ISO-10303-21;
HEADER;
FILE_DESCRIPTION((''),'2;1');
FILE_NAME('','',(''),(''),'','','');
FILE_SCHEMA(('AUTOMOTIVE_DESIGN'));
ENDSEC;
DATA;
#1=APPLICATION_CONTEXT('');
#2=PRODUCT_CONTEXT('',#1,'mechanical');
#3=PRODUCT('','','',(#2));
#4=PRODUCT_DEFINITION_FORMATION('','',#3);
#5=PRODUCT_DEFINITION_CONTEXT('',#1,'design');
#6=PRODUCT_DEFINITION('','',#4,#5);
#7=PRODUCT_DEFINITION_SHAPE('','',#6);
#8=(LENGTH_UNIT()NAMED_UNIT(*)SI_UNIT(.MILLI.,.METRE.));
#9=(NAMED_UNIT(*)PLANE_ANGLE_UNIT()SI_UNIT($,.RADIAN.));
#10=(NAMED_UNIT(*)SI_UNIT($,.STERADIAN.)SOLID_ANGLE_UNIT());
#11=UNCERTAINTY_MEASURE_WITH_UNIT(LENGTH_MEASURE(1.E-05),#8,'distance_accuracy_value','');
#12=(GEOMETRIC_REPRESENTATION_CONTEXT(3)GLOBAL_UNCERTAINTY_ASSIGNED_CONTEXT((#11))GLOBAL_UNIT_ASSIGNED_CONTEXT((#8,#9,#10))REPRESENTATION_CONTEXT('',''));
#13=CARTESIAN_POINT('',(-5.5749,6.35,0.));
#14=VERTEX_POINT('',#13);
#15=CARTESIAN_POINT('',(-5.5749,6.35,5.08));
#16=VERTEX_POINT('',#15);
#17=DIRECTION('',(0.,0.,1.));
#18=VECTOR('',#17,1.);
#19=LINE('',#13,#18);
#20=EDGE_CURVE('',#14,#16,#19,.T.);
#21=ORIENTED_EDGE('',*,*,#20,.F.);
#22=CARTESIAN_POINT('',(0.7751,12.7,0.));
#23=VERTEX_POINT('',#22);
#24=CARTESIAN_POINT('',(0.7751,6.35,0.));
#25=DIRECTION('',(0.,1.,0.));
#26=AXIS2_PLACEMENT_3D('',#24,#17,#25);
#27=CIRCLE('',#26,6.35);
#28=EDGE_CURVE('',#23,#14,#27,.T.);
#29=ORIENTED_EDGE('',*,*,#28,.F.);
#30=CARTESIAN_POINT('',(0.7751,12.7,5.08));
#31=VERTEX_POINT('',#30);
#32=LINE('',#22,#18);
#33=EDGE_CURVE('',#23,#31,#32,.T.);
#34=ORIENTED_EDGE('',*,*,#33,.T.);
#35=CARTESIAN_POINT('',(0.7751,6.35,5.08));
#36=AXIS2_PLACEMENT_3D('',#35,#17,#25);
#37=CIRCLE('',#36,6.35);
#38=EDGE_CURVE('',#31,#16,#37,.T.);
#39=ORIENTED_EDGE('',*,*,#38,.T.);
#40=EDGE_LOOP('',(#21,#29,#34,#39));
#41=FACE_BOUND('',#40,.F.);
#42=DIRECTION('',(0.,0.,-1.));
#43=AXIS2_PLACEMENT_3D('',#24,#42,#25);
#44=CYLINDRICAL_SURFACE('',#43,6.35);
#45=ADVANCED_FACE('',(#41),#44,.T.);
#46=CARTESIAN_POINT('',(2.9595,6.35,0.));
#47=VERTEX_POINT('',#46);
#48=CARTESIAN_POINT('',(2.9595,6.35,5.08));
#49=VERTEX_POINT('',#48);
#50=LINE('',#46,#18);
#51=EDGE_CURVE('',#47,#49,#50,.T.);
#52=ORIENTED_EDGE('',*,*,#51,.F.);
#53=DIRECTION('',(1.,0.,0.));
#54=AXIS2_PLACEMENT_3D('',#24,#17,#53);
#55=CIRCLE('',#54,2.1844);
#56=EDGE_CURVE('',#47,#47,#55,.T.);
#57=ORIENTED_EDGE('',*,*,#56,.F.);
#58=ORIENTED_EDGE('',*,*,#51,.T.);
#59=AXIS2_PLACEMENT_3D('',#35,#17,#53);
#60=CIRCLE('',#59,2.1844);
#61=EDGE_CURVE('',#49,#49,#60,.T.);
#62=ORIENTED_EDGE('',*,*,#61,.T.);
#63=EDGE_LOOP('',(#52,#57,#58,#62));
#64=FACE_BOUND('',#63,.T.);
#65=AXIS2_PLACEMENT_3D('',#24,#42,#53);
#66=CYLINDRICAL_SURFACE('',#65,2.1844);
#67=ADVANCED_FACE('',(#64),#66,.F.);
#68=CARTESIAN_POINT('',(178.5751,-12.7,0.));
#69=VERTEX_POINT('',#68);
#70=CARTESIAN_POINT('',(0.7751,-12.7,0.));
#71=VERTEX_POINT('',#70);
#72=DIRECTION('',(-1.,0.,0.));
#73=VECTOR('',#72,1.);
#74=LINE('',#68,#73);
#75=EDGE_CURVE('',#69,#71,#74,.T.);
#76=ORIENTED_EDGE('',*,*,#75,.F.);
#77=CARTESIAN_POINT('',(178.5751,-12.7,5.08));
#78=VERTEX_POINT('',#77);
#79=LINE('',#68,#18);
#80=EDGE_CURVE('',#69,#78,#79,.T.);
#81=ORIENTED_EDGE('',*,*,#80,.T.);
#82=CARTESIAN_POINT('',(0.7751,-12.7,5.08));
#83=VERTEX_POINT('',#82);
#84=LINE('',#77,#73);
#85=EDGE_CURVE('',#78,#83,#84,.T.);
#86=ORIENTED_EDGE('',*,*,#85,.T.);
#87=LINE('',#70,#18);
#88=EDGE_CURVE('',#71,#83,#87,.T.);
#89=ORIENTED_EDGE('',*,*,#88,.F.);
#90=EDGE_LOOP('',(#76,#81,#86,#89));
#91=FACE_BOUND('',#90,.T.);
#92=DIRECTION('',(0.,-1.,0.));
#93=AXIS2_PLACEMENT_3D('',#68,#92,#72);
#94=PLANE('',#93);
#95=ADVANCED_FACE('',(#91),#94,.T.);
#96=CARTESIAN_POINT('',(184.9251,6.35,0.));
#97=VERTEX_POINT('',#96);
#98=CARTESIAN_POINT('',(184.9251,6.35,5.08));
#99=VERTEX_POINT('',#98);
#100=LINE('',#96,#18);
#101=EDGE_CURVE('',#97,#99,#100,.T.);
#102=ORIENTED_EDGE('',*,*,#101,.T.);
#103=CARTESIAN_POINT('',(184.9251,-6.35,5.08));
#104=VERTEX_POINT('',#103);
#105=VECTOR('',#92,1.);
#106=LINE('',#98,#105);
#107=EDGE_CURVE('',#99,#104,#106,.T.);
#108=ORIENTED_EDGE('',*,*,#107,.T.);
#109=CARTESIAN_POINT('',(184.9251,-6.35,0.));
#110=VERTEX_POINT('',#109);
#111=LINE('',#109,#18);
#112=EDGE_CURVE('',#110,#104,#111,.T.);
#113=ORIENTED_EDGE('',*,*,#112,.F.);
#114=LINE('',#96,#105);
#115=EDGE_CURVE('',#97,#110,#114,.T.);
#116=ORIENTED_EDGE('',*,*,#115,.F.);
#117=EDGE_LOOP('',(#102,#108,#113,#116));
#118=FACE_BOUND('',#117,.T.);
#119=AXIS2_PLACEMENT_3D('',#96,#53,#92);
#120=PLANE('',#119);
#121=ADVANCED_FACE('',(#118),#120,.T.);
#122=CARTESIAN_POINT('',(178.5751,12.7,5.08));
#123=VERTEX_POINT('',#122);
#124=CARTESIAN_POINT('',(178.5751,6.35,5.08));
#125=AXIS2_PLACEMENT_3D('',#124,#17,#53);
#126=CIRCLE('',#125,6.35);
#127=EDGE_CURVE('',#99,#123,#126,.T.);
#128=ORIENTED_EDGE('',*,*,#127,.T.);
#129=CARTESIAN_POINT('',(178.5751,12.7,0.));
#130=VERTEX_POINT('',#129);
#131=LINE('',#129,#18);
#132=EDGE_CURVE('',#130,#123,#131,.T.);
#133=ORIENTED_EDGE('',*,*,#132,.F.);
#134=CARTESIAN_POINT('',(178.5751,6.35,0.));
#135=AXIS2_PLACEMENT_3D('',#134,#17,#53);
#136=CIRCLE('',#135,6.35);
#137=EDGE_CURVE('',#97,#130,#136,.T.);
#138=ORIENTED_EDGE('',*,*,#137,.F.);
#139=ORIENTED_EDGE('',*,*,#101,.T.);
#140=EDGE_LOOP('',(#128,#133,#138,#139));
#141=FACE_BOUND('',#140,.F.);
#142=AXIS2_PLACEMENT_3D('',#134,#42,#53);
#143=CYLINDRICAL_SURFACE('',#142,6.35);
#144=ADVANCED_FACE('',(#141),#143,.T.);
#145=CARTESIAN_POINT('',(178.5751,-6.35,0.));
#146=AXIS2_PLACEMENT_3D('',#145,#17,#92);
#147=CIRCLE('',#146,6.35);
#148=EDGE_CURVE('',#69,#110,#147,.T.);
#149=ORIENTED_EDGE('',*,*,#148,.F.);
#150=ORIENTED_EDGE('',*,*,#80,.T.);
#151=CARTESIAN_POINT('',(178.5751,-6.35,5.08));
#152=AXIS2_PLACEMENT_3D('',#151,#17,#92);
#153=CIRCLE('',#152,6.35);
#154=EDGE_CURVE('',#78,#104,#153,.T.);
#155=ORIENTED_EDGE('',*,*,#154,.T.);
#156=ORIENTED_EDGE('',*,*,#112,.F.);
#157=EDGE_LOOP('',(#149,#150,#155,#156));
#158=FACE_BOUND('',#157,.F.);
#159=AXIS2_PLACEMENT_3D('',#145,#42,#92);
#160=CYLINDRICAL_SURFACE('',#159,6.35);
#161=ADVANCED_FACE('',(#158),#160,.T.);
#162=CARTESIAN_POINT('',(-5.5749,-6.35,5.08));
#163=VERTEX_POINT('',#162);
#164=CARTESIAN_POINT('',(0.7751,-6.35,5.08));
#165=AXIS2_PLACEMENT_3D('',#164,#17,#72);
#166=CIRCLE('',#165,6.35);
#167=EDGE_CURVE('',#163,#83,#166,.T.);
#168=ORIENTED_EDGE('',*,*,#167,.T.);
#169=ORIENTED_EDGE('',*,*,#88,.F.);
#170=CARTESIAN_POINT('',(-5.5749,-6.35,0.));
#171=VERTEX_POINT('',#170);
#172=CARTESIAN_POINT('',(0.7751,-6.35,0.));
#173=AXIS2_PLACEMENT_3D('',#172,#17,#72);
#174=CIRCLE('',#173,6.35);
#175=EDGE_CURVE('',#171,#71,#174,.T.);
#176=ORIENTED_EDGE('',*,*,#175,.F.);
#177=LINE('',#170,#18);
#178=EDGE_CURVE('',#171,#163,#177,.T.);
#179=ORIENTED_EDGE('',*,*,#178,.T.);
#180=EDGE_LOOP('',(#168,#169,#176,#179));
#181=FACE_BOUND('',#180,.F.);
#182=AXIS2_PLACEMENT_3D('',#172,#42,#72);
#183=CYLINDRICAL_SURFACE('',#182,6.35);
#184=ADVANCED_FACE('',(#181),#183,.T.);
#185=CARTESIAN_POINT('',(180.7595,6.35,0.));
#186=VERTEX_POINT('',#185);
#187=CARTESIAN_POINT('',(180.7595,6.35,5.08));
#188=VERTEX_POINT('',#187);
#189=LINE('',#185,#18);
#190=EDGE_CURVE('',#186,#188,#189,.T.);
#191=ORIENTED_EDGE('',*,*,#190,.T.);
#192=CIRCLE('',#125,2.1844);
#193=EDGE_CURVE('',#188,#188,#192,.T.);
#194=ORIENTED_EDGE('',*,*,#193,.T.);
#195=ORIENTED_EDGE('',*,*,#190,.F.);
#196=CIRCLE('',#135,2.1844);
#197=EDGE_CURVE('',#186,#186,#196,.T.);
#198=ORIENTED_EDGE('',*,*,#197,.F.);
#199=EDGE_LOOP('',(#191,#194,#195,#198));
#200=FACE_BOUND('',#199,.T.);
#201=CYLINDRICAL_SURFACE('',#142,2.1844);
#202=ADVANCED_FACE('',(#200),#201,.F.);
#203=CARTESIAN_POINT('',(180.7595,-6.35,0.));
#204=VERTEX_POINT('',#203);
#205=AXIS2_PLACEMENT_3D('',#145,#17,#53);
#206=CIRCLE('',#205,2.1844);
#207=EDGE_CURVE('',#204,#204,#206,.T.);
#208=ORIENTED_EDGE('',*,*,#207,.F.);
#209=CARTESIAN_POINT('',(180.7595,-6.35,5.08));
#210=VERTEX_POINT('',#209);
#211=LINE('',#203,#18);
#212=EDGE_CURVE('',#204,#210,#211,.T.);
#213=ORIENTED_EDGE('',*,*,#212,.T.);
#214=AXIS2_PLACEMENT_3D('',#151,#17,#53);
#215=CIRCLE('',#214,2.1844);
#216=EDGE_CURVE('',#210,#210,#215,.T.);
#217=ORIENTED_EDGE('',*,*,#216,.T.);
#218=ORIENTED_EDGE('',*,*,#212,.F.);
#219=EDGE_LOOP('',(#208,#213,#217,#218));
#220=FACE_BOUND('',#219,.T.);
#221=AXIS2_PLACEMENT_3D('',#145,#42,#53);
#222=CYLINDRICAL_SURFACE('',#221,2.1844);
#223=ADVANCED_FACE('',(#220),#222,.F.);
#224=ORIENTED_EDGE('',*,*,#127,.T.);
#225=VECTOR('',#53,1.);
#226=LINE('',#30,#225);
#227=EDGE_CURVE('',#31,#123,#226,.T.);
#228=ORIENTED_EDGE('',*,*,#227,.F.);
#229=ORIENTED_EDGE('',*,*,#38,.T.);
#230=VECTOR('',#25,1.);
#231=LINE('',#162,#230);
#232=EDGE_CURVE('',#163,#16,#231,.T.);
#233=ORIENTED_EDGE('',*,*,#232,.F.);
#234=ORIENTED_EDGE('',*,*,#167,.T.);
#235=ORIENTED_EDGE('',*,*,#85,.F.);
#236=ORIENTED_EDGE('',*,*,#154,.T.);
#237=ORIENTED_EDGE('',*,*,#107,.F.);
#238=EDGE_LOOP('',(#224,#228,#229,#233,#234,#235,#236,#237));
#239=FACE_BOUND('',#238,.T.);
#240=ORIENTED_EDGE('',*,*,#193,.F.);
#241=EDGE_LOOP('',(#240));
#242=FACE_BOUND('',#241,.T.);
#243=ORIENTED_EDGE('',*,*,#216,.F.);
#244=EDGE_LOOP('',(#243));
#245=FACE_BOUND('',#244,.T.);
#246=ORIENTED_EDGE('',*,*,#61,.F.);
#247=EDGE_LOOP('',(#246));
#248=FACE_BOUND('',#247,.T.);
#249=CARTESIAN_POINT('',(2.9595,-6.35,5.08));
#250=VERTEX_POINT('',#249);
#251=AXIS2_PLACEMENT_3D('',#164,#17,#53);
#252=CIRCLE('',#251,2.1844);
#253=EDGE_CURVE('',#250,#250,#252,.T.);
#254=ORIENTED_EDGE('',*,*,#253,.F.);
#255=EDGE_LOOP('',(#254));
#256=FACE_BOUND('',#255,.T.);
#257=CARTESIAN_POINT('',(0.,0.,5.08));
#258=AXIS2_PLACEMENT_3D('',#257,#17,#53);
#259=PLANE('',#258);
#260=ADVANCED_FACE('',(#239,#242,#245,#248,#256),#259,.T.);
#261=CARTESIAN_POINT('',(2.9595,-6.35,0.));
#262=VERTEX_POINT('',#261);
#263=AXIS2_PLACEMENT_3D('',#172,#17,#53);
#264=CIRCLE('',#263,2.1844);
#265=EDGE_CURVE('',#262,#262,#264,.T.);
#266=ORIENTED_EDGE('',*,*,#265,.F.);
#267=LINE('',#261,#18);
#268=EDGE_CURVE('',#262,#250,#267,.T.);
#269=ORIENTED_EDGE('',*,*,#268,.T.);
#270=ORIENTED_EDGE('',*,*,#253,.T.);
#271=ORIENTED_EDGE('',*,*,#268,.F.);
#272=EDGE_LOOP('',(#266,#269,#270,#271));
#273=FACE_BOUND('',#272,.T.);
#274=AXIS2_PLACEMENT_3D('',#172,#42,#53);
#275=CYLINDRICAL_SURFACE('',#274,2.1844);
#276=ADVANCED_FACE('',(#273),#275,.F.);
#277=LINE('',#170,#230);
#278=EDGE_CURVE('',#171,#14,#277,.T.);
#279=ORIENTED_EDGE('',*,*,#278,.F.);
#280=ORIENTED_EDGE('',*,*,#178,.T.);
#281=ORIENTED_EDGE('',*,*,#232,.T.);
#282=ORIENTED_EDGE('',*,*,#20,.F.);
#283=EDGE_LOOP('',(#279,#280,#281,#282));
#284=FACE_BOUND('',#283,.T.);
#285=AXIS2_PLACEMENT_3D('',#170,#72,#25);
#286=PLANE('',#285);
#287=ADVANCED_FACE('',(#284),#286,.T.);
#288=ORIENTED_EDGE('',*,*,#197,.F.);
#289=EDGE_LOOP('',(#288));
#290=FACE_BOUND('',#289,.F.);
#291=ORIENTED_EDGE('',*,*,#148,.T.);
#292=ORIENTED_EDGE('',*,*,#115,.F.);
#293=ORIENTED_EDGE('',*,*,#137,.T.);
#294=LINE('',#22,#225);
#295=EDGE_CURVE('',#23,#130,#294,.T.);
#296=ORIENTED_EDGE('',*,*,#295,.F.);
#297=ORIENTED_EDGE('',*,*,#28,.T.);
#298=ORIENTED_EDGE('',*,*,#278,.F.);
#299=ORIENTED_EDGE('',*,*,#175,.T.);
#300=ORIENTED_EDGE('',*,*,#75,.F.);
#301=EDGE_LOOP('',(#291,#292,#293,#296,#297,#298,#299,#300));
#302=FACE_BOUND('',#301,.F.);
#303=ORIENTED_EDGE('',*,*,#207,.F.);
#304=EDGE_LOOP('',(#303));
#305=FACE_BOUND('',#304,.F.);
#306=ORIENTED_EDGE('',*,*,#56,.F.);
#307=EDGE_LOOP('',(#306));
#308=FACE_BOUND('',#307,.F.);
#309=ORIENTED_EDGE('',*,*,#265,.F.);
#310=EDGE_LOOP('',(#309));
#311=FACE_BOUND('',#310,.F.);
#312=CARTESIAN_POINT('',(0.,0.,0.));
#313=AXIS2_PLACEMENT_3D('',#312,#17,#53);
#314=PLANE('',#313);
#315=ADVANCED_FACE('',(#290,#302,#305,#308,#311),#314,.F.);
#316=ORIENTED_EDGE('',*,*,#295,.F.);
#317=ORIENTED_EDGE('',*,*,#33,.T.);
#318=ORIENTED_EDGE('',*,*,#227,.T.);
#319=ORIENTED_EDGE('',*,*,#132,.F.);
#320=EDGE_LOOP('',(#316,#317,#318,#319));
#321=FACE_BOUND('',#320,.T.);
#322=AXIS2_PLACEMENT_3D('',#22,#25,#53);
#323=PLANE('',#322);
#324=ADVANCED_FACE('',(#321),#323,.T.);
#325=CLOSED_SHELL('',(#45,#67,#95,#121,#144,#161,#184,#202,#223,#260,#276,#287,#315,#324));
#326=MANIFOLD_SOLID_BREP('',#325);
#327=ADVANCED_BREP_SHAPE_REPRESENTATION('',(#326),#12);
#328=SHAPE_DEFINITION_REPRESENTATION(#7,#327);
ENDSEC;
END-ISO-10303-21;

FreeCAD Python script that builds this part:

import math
import FreeCAD as App
import Part
import Sketcher

V = App.Vector
Q = App.Units.Quantity

doc = App.newDocument("Part")
body = doc.addObject("PartDesign::Body", "Body")

# Sketch on XY plane
sketch1 = body.newObject("Sketcher::SketchObject", "Sketch")
sketch1.AttachmentSupport = (doc.getObject("XY_Plane"), [""])
sketch1.MapMode = "FlatFace"
sketch1.addGeometry([
    Part.LineSegment(V(0.8, -12.7, 0), V(178.6, -12.7, 0)),  # 0
    Part.ArcOfCircle(Part.Circle(V(178.6, -6.3, 0), V(0, 0, 1), 6.3), math.radians(-90), math.radians(0)),  # 1
    Part.LineSegment(V(184.9, -6.3, 0), V(184.9, 6.3, 0)),  # 2
    Part.ArcOfCircle(Part.Circle(V(178.6, 6.3, 0), V(0, 0, 1), 6.3), math.radians(0), math.radians(90)),  # 3
    Part.LineSegment(V(178.6, 12.7, 0), V(0.8, 12.7, 0)),  # 4
    Part.ArcOfCircle(Part.Circle(V(0.8, 6.3, 0), V(0, 0, 1), 6.3), math.radians(90), math.radians(180)),  # 5
    Part.LineSegment(V(-5.6, 6.3, 0), V(-5.6, -6.3, 0)),  # 6
    Part.ArcOfCircle(Part.Circle(V(0.8, -6.3, 0), V(0, 0, 1), 6.4), math.radians(180), math.radians(270)),  # 7
    Part.Circle(V(0.8, -6.3, 0), V(0, 0, 1), 2.2),  # 8
    Part.Circle(V(178.6, -6.3, 0), V(0, 0, 1), 2.2),  # 9
    Part.Circle(V(0.8, 6.3, 0), V(0, 0, 1), 2.2),  # 10
    Part.Circle(V(178.6, 6.3, 0), V(0, 0, 1), 2.2),  # 11
], False)
sketch1.addConstraint([
    Sketcher.Constraint("Tangent", 0, 2, 1, 1),
    Sketcher.Constraint("Tangent", 1, 2, 2, 1),
    Sketcher.Constraint("Tangent", 2, 2, 3, 1),
    Sketcher.Constraint("Tangent", 3, 2, 4, 1),
    Sketcher.Constraint("Tangent", 4, 2, 5, 1),
    Sketcher.Constraint("Tangent", 5, 2, 6, 1),
    Sketcher.Constraint("Tangent", 6, 2, 7, 1),
    Sketcher.Constraint("Tangent", 7, 2, 0, 1),
    Sketcher.Constraint("Horizontal", 0),
    Sketcher.Constraint("Vertical", 2),
    Sketcher.Constraint("Horizontal", 4),
    Sketcher.Constraint("Vertical", 6),
    Sketcher.Constraint("Coincident", 8, 3, 7, 3),
    Sketcher.Constraint("Coincident", 9, 3, 1, 3),
    Sketcher.Constraint("Coincident", 10, 3, 5, 3),
    Sketcher.Constraint("Coincident", 11, 3, 3, 3),
    Sketcher.Constraint("Equal", 1, 3),
    Sketcher.Constraint("Equal", 3, 5),
    Sketcher.Constraint("Equal", 5, 7),
    Sketcher.Constraint("Equal", 8, 9),
    Sketcher.Constraint("Equal", 9, 10),
    Sketcher.Constraint("Equal", 10, 11),
    Sketcher.Constraint("Radius", 1, Q("0.25 in")),
    Sketcher.Constraint("DistanceX", 0, 1, 0, 2, Q("7 in")),
    Sketcher.Constraint("DistanceY", 1, 3, -1, 1, Q("0.25 in")),
    Sketcher.Constraint("DistanceY", -1, 1, 3, 3, Q("0.25 in")),
    Sketcher.Constraint("Diameter", 8, Q("0.172 in")),
    Sketcher.Constraint("DistanceX", -1, 1, 1, 3, Q("7.0305118 in")),
])
pad1 = body.newObject("PartDesign::Pad", "Pad")
pad1.Profile = sketch1
pad1.Length = Q("0.2 in")

doc.recompute()
